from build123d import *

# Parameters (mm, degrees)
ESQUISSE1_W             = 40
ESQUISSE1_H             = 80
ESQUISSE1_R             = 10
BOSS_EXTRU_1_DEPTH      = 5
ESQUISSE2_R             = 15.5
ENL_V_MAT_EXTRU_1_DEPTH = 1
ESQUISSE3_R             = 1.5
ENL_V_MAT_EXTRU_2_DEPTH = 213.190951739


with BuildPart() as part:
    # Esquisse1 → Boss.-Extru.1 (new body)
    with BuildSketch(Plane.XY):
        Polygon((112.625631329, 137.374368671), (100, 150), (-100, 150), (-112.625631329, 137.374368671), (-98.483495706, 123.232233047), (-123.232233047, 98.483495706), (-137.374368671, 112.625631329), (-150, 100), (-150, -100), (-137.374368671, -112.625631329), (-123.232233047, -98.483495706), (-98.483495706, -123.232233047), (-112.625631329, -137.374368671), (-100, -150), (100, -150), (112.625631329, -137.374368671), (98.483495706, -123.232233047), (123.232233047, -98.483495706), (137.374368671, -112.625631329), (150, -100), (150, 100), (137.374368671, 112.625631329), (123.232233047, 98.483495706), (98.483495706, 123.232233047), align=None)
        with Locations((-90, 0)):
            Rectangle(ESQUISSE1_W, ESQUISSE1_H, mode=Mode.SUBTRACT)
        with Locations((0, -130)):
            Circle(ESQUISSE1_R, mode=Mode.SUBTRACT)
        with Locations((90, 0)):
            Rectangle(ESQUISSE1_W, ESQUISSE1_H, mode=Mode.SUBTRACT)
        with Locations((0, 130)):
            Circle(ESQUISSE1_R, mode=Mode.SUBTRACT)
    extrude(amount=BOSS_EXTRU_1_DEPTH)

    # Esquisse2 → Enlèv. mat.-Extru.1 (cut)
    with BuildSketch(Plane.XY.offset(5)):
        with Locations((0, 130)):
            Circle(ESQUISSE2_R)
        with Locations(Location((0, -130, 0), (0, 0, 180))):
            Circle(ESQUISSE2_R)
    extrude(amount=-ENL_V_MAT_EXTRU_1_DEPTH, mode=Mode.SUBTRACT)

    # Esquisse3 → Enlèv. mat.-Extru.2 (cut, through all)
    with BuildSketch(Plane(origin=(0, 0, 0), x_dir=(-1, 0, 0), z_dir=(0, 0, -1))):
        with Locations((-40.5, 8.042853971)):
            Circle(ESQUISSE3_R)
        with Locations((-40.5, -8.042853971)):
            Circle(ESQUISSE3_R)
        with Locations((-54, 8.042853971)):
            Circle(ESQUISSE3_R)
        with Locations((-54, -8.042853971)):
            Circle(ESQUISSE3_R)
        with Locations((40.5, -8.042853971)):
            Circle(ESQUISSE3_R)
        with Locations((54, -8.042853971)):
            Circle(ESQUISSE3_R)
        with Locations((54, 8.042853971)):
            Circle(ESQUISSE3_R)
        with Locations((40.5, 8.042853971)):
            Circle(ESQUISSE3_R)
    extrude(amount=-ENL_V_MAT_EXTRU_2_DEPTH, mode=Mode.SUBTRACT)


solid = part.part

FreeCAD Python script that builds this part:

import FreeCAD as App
import Part
import Sketcher
from FreeCAD import Vector
Q = App.Units.Quantity

doc = App.newDocument("Part")
params = doc.addObject("Spreadsheet::Sheet", "Params")
for row, (alias, value) in enumerate([
    ("sketch1_diameter", "20 mm"),
    ("sketch1_width", "200 mm"),
    ("sketch1_width2", "40 mm"),
    ("sketch1_height", "80 mm"),
    ("sketch1_length", "20 mm"),
    ("pad1_length", "5 mm"),
    ("sketch2_diameter", "31 mm"),
    ("pocket1_length", "1 mm"),
    ("sketch3_diameter", "3 mm"),
], start=1):
    params.set(f"A{row}", alias)
    params.set(f"B{row}", "=" + value)
    params.setAlias(f"B{row}", alias)

body = doc.addObject("PartDesign::Body", "Body")

sketch1 = body.newObject("Sketcher::SketchObject", "Sketch")
sketch1.AttachmentSupport = (doc.getObject("XY_Plane"), [""])
sketch1.MapMode = "FlatFace"
sketch1.addGeometry(Part.LineSegment(Vector(112.625631, 137.374369, 0), Vector(100, 150, 0)), False)
sketch1.addGeometry(Part.LineSegment(Vector(100, 150, 0), Vector(-100, 150, 0)), False)
sketch1.addGeometry(Part.LineSegment(Vector(-100, 150, 0), Vector(-112.625631, 137.374369, 0)), False)
sketch1.addGeometry(Part.LineSegment(Vector(-112.625631, 137.374369, 0), Vector(-98.483496, 123.232233, 0)), False)
sketch1.addGeometry(Part.LineSegment(Vector(-98.483496, 123.232233, 0), Vector(-123.232233, 98.483496, 0)), False)
sketch1.addGeometry(Part.LineSegment(Vector(-123.232233, 98.483496, 0), Vector(-137.374369, 112.625631, 0)), False)
sketch1.addGeometry(Part.LineSegment(Vector(-137.374369, 112.625631, 0), Vector(-150, 100, 0)), False)
sketch1.addGeometry(Part.LineSegment(Vector(-150, 100, 0), Vector(-150, -100, 0)), False)
sketch1.addGeometry(Part.LineSegment(Vector(-150, -100, 0), Vector(-137.374369, -112.625631, 0)), False)
sketch1.addGeometry(Part.LineSegment(Vector(-137.374369, -112.625631, 0), Vector(-123.232233, -98.483496, 0)), False)
sketch1.addGeometry(Part.LineSegment(Vector(-123.232233, -98.483496, 0), Vector(-98.483496, -123.232233, 0)), False)
sketch1.addGeometry(Part.LineSegment(Vector(-98.483496, -123.232233, 0), Vector(-112.625631, -137.374369, 0)), False)
sketch1.addGeometry(Part.LineSegment(Vector(-112.625631, -137.374369, 0), Vector(-100, -150, 0)), False)
sketch1.addGeometry(Part.LineSegment(Vector(-100, -150, 0), Vector(100, -150, 0)), False)
sketch1.addGeometry(Part.LineSegment(Vector(100, -150, 0), Vector(112.625631, -137.374369, 0)), False)
sketch1.addGeometry(Part.LineSegment(Vector(112.625631, -137.374369, 0), Vector(98.483496, -123.232233, 0)), False)
sketch1.addGeometry(Part.LineSegment(Vector(98.483496, -123.232233, 0), Vector(123.232233, -98.483496, 0)), False)
sketch1.addGeometry(Part.LineSegment(Vector(123.232233, -98.483496, 0), Vector(137.374369, -112.625631, 0)), False)
sketch1.addGeometry(Part.LineSegment(Vector(137.374369, -112.625631, 0), Vector(150, -100, 0)), False)
sketch1.addGeometry(Part.LineSegment(Vector(150, -100, 0), Vector(150, 100, 0)), False)
sketch1.addGeometry(Part.LineSegment(Vector(150, 100, 0), Vector(137.374369, 112.625631, 0)), False)
sketch1.addGeometry(Part.LineSegment(Vector(137.374369, 112.625631, 0), Vector(123.232233, 98.483496, 0)), False)
sketch1.addGeometry(Part.LineSegment(Vector(123.232233, 98.483496, 0), Vector(98.483496, 123.232233, 0)), False)
sketch1.addGeometry(Part.LineSegment(Vector(98.483496, 123.232233, 0), Vector(112.625631, 137.374369, 0)), False)
sketch1.addGeometry(Part.Circle(Vector(0, -130, 0), Vector(0, 0, 1), 10), False)
sketch1.addGeometry(Part.LineSegment(Vector(-70, -40, 0), Vector(-110, -40, 0)), False)
sketch1.addGeometry(Part.LineSegment(Vector(-110, -40, 0), Vector(-110, 40, 0)), False)
sketch1.addGeometry(Part.LineSegment(Vector(-110, 40, 0), Vector(-70, 40, 0)), False)
sketch1.addGeometry(Part.LineSegment(Vector(-70, 40, 0), Vector(-70, -40, 0)), False)
sketch1.addGeometry(Part.LineSegment(Vector(110, -40, 0), Vector(70, -40, 0)), False)
sketch1.addGeometry(Part.LineSegment(Vector(70, -40, 0), Vector(70, 40, 0)), False)
sketch1.addGeometry(Part.LineSegment(Vector(70, 40, 0), Vector(110, 40, 0)), False)
sketch1.addGeometry(Part.LineSegment(Vector(110, 40, 0), Vector(110, -40, 0)), False)
sketch1.addGeometry(Part.Circle(Vector(0, 130, 0), Vector(0, 0, 1), 10), False)
sketch1.addConstraint(Sketcher.Constraint("Coincident", 0, 2, 1, 1))
sketch1.addConstraint(Sketcher.Constraint("Coincident", 1, 2, 2, 1))
sketch1.addConstraint(Sketcher.Constraint("Coincident", 2, 2, 3, 1))
sketch1.addConstraint(Sketcher.Constraint("Coincident", 3, 2, 4, 1))
sketch1.addConstraint(Sketcher.Constraint("Coincident", 4, 2, 5, 1))
sketch1.addConstraint(Sketcher.Constraint("Coincident", 5, 2, 6, 1))
sketch1.addConstraint(Sketcher.Constraint("Coincident", 6, 2, 7, 1))
sketch1.addConstraint(Sketcher.Constraint("Coincident", 7, 2, 8, 1))
sketch1.addConstraint(Sketcher.Constraint("Coincident", 8, 2, 9, 1))
sketch1.addConstraint(Sketcher.Constraint("Coincident", 9, 2, 10, 1))
sketch1.addConstraint(Sketcher.Constraint("Coincident", 10, 2, 11, 1))
sketch1.addConstraint(Sketcher.Constraint("Coincident", 11, 2, 12, 1))
sketch1.addConstraint(Sketcher.Constraint("Coincident", 12, 2, 13, 1))
sketch1.addConstraint(Sketcher.Constraint("Coincident", 13, 2, 14, 1))
sketch1.addConstraint(Sketcher.Constraint("Coincident", 14, 2, 15, 1))
sketch1.addConstraint(Sketcher.Constraint("Coincident", 15, 2, 16, 1))
sketch1.addConstraint(Sketcher.Constraint("Coincident", 16, 2, 17, 1))
sketch1.addConstraint(Sketcher.Constraint("Coincident", 17, 2, 18, 1))
sketch1.addConstraint(Sketcher.Constraint("Coincident", 18, 2, 19, 1))
sketch1.addConstraint(Sketcher.Constraint("Coincident", 19, 2, 20, 1))
sketch1.addConstraint(Sketcher.Constraint("Coincident", 20, 2, 21, 1))
sketch1.addConstraint(Sketcher.Constraint("Coincident", 21, 2, 22, 1))
sketch1.addConstraint(Sketcher.Constraint("Coincident", 22, 2, 23, 1))
sketch1.addConstraint(Sketcher.Constraint("Coincident", 23, 2, 0, 1))
sketch1.addConstraint(Sketcher.Constraint("Coincident", 25, 2, 26, 1))
sketch1.addConstraint(Sketcher.Constraint("Coincident", 26, 2, 27, 1))
sketch1.addConstraint(Sketcher.Constraint("Coincident", 27, 2, 28, 1))
sketch1.addConstraint(Sketcher.Constraint("Coincident", 28, 2, 25, 1))
sketch1.addConstraint(Sketcher.Constraint("Coincident", 29, 2, 30, 1))
sketch1.addConstraint(Sketcher.Constraint("Coincident", 30, 2, 31, 1))
sketch1.addConstraint(Sketcher.Constraint("Coincident", 31, 2, 32, 1))
sketch1.addConstraint(Sketcher.Constraint("Coincident", 32, 2, 29, 1))
sketch1.addConstraint(Sketcher.Constraint("Horizontal", 1))
sketch1.addConstraint(Sketcher.Constraint("Vertical", 7))
sketch1.addConstraint(Sketcher.Constraint("Horizontal", 13))
sketch1.addConstraint(Sketcher.Constraint("Vertical", 19))
sketch1.addConstraint(Sketcher.Constraint("Horizontal", 25))
sketch1.addConstraint(Sketcher.Constraint("Vertical", 26))
sketch1.addConstraint(Sketcher.Constraint("Horizontal", 27))
sketch1.addConstraint(Sketcher.Constraint("Vertical", 28))
sketch1.addConstraint(Sketcher.Constraint("Horizontal", 29))
sketch1.addConstraint(Sketcher.Constraint("Vertical", 30))
sketch1.addConstraint(Sketcher.Constraint("Horizontal", 31))
sketch1.addConstraint(Sketcher.Constraint("Vertical", 32))
sketch1.addConstraint(Sketcher.Constraint("Equal", 24, 33))
sketch1.addConstraint(Sketcher.Constraint("Symmetric", 24, 3, 33, 3, -1, 1))
sketch1.addConstraint(Sketcher.Constraint("Symmetric", 0, 2, 12, 2, -1, 1))
sketch1.addConstraint(Sketcher.Constraint("Symmetric", 2, 2, 14, 2, -1, 1))
sketch1.addConstraint(Sketcher.Constraint("Symmetric", 3, 2, 15, 2, -1, 1))
sketch1.addConstraint(Sketcher.Constraint("Symmetric", 4, 2, 16, 2, -1, 1))
sketch1.addConstraint(Sketcher.Constraint("Symmetric", 5, 2, 17, 2, -1, 1))
sketch1.addConstraint(Sketcher.Constraint("Symmetric", 6, 2, 18, 2, -1, 1))
sketch1.addConstraint(Sketcher.Constraint("Symmetric", 8, 2, 20, 2, -1, 1))
sketch1.addConstraint(Sketcher.Constraint("Symmetric", 9, 2, 21, 2, -1, 1))
sketch1.addConstraint(Sketcher.Constraint("Symmetric", 10, 2, 22, 2, -1, 1))
sketch1.addConstraint(Sketcher.Constraint("Symmetric", 11, 2, 23, 2, -1, 1))
sketch1.addConstraint(Sketcher.Constraint("Symmetric", 27, 2, 29, 2, -1, 1))
sketch1.addConstraint(Sketcher.Constraint("Symmetric", 25, 2, 31, 2, -1, 1))
sketch1.addConstraint(Sketcher.Constraint("Symmetric", 11, 2, 14, 2, -2))
sketch1.addConstraint(Sketcher.Constraint("Symmetric", 10, 2, 15, 2, -2))
sketch1.addConstraint(Sketcher.Constraint("Symmetric", 9, 2, 16, 2, -2))
sketch1.addConstraint(Sketcher.Constraint("Symmetric", 8, 2, 17, 2, -2))
sketch1.addConstraint(Sketcher.Constraint("PointOnObject", 24, 3, -2))
sketch1.addConstraint(Sketcher.Constraint("Perpendicular", 0, 2))
sketch1.addConstraint(Sketcher.Constraint("Perpendicular", 2, 3))
sketch1.addConstraint(Sketcher.Constraint("Perpendicular", 3, 4))
sketch1.addConstraint(Sketcher.Constraint("Perpendicular", 4, 5))
sketch1.addConstraint(Sketcher.Constraint("Perpendicular", 5, 6))
sketch1.addConstraint(Sketcher.Constraint("Perpendicular", 6, 8))
sketch1.addConstraint(Sketcher.Constraint("Perpendicular", 8, 9))
sketch1.addConstraint(Sketcher.Constraint("Perpendicular", 12, 14))
sketch1.addConstraint(Sketcher.Constraint("Perpendicular", 18, 20))
sketch1.addConstraint(Sketcher.Constraint("Horizontal", 28, 2, 29, 2))
sketch1.addConstraint(Sketcher.Constraint("Equal", 13, 7))
sketch1.addConstraint(Sketcher.Constraint("Equal", 3, 5))
sketch1.addConstraint(Sketcher.Constraint("Equal", 2, 6))
sketch1.addConstraint(Sketcher.Constraint("Diameter", 24, Q("20 mm")))
sketch1.addConstraint(Sketcher.Constraint("DistanceX", 1, 2, 1, 1, Q("200 mm")))
sketch1.addConstraint(Sketcher.Constraint("DistanceX", 25, 2, 25, 1, Q("40 mm")))
sketch1.addConstraint(Sketcher.Constraint("DistanceY", 26, 1, 26, 2, Q("80 mm")))
sketch1.addConstraint(Sketcher.Constraint("Distance", 3, Q("20 mm")))
sketch1.addConstraint(Sketcher.Constraint("Distance", 4, Q("35 mm")))
sketch1.addConstraint(Sketcher.Constraint("DistanceY", 24, 3, -1, 1, Q("130 mm")))
sketch1.addConstraint(Sketcher.Constraint("DistanceY", -1, 1, 0, 2, Q("150 mm")))
sketch1.addConstraint(Sketcher.Constraint("DistanceX", 25, 2, -1, 1, Q("110 mm")))
sketch1.setExpression("Constraints[76]", "Params.sketch1_diameter")
sketch1.setExpression("Constraints[77]", "Params.sketch1_width")
sketch1.setExpression("Constraints[78]", "Params.sketch1_width2")
sketch1.setExpression("Constraints[79]", "Params.sketch1_height")
sketch1.setExpression("Constraints[80]", "Params.sketch1_length")
pad1 = body.newObject("PartDesign::Pad", "Pad")
pad1.Profile = sketch1
pad1.setExpression("Length", "Params.pad1_length")

sketch2 = body.newObject("Sketcher::SketchObject", "Sketch001")
sketch2.AttachmentSupport = (doc.getObject("XY_Plane"), [""])
sketch2.MapMode = "FlatFace"
sketch2.AttachmentOffset = App.Placement(Vector(0, 0, 5), App.Rotation())
sketch2.addGeometry(Part.Circle(Vector(0, 130, 0), Vector(0, 0, 1), 15.5), False)
sketch2.addGeometry(Part.Circle(Vector(0, -130, 0), Vector(0, 0, 1), 15.5), False)
sketch2.addConstraint(Sketcher.Constraint("Equal", 0, 1))
sketch2.addConstraint(Sketcher.Constraint("Symmetric", 0, 3, 1, 3, -1, 1))
sketch2.addConstraint(Sketcher.Constraint("PointOnObject", 0, 3, -2))
sketch2.addConstraint(Sketcher.Constraint("Diameter", 0, Q("31 mm")))
sketch2.addConstraint(Sketcher.Constraint("DistanceY", -1, 1, 0, 3, Q("130 mm")))
sketch2.setExpression("Constraints[3]", "Params.sketch2_diameter")
pocket1 = body.newObject("PartDesign::Pocket", "Pocket")
pocket1.Profile = sketch2
pocket1.setExpression("Length", "Params.pocket1_length")

sketch3 = body.newObject("Sketcher::SketchObject", "Sketch002")
sketch3.AttachmentSupport = (doc.getObject("XY_Plane"), [""])
sketch3.MapMode = "FlatFace"
sketch3.addGeometry(Part.Circle(Vector(40.5, 8.042854, 0), Vector(0, 0, 1), 1.5), False)
sketch3.addGeometry(Part.Circle(Vector(40.5, -8.042854, 0), Vector(0, 0, 1), 1.5), False)
sketch3.addGeometry(Part.Circle(Vector(54, 8.042854, 0), Vector(0, 0, 1), 1.5), False)
sketch3.addGeometry(Part.Circle(Vector(54, -8.042854, 0), Vector(0, 0, 1), 1.5), False)
sketch3.addGeometry(Part.Circle(Vector(-40.5, -8.042854, 0), Vector(0, 0, 1), 1.5), False)
sketch3.addGeometry(Part.Circle(Vector(-54, -8.042854, 0), Vector(0, 0, 1), 1.5), False)
sketch3.addGeometry(Part.Circle(Vector(-54, 8.042854, 0), Vector(0, 0, 1), 1.5), False)
sketch3.addGeometry(Part.Circle(Vector(-40.5, 8.042854, 0), Vector(0, 0, 1), 1.5), False)
sketch3.addConstraint(Sketcher.Constraint("Equal", 0, 1))
sketch3.addConstraint(Sketcher.Constraint("Equal", 1, 2))
sketch3.addConstraint(Sketcher.Constraint("Equal", 2, 3))
sketch3.addConstraint(Sketcher.Constraint("Equal", 3, 4))
sketch3.addConstraint(Sketcher.Constraint("Equal", 4, 5))
sketch3.addConstraint(Sketcher.Constraint("Equal", 5, 6))
sketch3.addConstraint(Sketcher.Constraint("Equal", 6, 7))
sketch3.addConstraint(Sketcher.Constraint("Symmetric", 0, 3, 4, 3, -1, 1))
sketch3.addConstraint(Sketcher.Constraint("Symmetric", 2, 3, 5, 3, -1, 1))
sketch3.addConstraint(Sketcher.Constraint("Symmetric", 3, 3, 6, 3, -1, 1))
sketch3.addConstraint(Sketcher.Constraint("Symmetric", 1, 3, 7, 3, -1, 1))
sketch3.addConstraint(Sketcher.Constraint("Symmetric", 1, 3, 4, 3, -2))
sketch3.addConstraint(Sketcher.Constraint("Symmetric", 3, 3, 5, 3, -2))
sketch3.addConstraint(Sketcher.Constraint("Horizontal", 0, 3, 2, 3))
sketch3.addConstraint(Sketcher.Constraint("Diameter", 0, Q("3 mm")))
sketch3.addConstraint(Sketcher.Constraint("DistanceX", -1, 1, 2, 3, Q("54 mm")))
sketch3.addConstraint(Sketcher.Constraint("DistanceX", 4, 3, 1, 3, Q("81 mm")))
sketch3.addConstraint(Sketcher.Constraint("DistanceY", -1, 1, 0, 3, Q("8.042854 mm")))
sketch3.setExpression("Constraints[14]", "Params.sketch3_diameter")
pocket2 = body.newObject("PartDesign::Pocket", "Pocket001")
pocket2.Profile = sketch3
pocket2.Type = "ThroughAll"
pocket2.Reversed = True

doc.recompute()
